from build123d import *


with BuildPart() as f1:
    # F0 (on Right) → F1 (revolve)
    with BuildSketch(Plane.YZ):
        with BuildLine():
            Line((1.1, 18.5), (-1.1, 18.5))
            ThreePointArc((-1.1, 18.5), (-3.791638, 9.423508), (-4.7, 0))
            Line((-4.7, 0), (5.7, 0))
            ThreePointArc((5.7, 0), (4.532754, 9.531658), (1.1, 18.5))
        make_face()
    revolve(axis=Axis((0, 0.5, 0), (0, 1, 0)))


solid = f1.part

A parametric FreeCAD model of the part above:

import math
import FreeCAD as App
import Part
import Sketcher

V = App.Vector

doc = App.newDocument("Part")
params = doc.addObject("Spreadsheet::Sheet", "Params")
for row, (alias, value) in enumerate([
    ("sketch1_width", "2.2 mm"),
    ("sketch1_width2", "10.4 mm"),
    ("revolution_angle", "360 deg"),
], start=1):
    params.set(f"A{row}", alias)
    params.set(f"B{row}", "=" + value)
    params.setAlias(f"B{row}", alias)

body = doc.addObject("PartDesign::Body", "Body")

# Sketch on YZ plane
sketch1 = doc.addObject("Sketcher::SketchObject", "Sketch")
body.addObject(sketch1)
sketch1.AttachmentSupport = (doc.YZ_Plane, [""])
sketch1.MapMode = "FlatFace"
sketch1.addGeometry(Part.LineSegment(V(1.1, 18.5, 0), V(-1.1, 18.5, 0)), False)
sketch1.addGeometry(Part.ArcOfCircle(Part.Circle(V(44.634695, 0.000005, 0), V(0, 0, 1), 49.334695), math.radians(157.976333), math.radians(180.000006)), False)
sketch1.addGeometry(Part.LineSegment(V(-4.7, 0, 0), V(5.7, 0, 0)), False)
sketch1.addGeometry(Part.ArcOfCircle(Part.Circle(V(-33.801089, 0, 0), V(0, 0, 1), 39.501089), math.radians(0.000001), math.radians(27.926696)), False)
sketch1.addConstraint(Sketcher.Constraint("Coincident", 0, 2, 1, 1))
sketch1.addConstraint(Sketcher.Constraint("Coincident", 1, 2, 2, 1))
sketch1.addConstraint(Sketcher.Constraint("Coincident", 2, 2, 3, 1))
sketch1.addConstraint(Sketcher.Constraint("Coincident", 3, 2, 0, 1))
sketch1.addConstraint(Sketcher.Constraint("Horizontal", 0))
sketch1.addConstraint(Sketcher.Constraint("Horizontal", 2))
sketch1.addConstraint(Sketcher.Constraint("PointOnObject", 3, 3, -1))
sketch1.addConstraint(Sketcher.Constraint("PointOnObject", 1, 2, -1))
sketch1.addConstraint(Sketcher.Constraint("DistanceX", 0, 2, 0, 1, 2.2))
sketch1.addConstraint(Sketcher.Constraint("DistanceX", 2, 1, 2, 2, 10.4))
sketch1.addConstraint(Sketcher.Constraint("DistanceX", 0, 2, -1, 1, 1.1))
sketch1.addConstraint(Sketcher.Constraint("DistanceY", -1, 1, 0, 2, 18.5))
sketch1.addConstraint(Sketcher.Constraint("DistanceX", 1, 2, -1, 1, 4.7))
sketch1.addConstraint(Sketcher.Constraint("Radius", 1, 49.334695))
sketch1.setExpression("Constraints[8]", "Params.sketch1_width")
sketch1.setExpression("Constraints[9]", "Params.sketch1_width2")
revolution = doc.addObject("PartDesign::Revolution", "Revolution")
body.addObject(revolution)
revolution.Profile = sketch1
revolution.ReferenceAxis = (sketch1, ["H_Axis"])
revolution.setExpression("Angle", "Params.revolution_angle")

doc.recompute()
